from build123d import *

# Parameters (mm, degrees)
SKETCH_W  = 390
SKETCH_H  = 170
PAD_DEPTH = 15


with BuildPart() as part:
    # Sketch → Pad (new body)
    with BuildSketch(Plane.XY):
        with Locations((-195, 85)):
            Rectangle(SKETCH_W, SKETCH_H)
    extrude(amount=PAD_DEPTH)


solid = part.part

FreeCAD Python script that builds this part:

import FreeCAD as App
import Part
import Sketcher
from FreeCAD import Vector
Q = App.Units.Quantity


def add_polygon(sketch, points):
    """Adds a closed chain of lines whose ends are joined by coincident constraints."""
    first, n = sketch.GeometryCount, len(points)
    for a, b in zip(points, points[1:] + points[:1]):
        sketch.addGeometry(Part.LineSegment(App.Vector(*a, 0), App.Vector(*b, 0)), False)
    for i in range(n):
        sketch.addConstraint(Sketcher.Constraint("Coincident", first + i, 2, first + (i + 1) % n, 1))

doc = App.newDocument("Part")
body = doc.addObject("PartDesign::Body", "Body")

# Sketch on XY plane
sketch1 = doc.addObject("Sketcher::SketchObject", "Sketch")
body.addObject(sketch1)
sketch1.AttachmentSupport = (doc.XY_Plane, [""])
sketch1.MapMode = "FlatFace"
add_polygon(sketch1, [(-390, 170), (-390, 0), (0, 0), (0, 170)])  # lines 0-3
sketch1.addConstraint(Sketcher.Constraint("Vertical", 0))
sketch1.addConstraint(Sketcher.Constraint("Horizontal", 1))
sketch1.addConstraint(Sketcher.Constraint("Vertical", 2))
sketch1.addConstraint(Sketcher.Constraint("Horizontal", 3))
sketch1.addConstraint(Sketcher.Constraint("Coincident", 1, 2, -1, 1))
sketch1.addConstraint(Sketcher.Constraint("DistanceX", 1, 1, 1, 2, Q("390 mm")))
sketch1.addConstraint(Sketcher.Constraint("DistanceY", 0, 2, 0, 1, Q("170 mm")))
pad1 = doc.addObject("PartDesign::Pad", "Pad")
body.addObject(pad1)
pad1.Profile = sketch1
pad1.Length = 15

doc.recompute()
